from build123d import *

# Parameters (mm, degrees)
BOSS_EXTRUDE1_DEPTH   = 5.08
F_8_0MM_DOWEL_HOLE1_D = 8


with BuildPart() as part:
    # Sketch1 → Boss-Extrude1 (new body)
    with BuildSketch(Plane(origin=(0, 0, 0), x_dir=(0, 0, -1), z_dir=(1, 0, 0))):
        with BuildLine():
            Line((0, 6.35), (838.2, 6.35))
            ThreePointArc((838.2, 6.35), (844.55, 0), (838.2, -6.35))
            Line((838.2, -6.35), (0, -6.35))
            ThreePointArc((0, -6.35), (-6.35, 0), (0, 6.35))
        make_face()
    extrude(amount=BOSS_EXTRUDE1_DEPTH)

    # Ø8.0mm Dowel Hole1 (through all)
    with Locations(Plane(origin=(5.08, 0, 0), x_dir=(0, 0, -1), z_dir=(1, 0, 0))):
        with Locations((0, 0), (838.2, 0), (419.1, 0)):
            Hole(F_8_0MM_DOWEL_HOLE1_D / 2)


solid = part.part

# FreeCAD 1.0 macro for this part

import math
import FreeCAD as App
import Part
import Sketcher

V = App.Vector
Q = App.Units.Quantity

doc = App.newDocument("Part")
body = doc.addObject("PartDesign::Body", "Body")

# Sketch on YZ plane
sketch1 = body.newObject("Sketcher::SketchObject", "Sketch")
sketch1.AttachmentSupport = (doc.getObject("YZ_Plane"), [""])
sketch1.MapMode = "FlatFace"
sketch1.addGeometry([
    Part.LineSegment(V(6, -838, 0), V(6, 0, 0)),
    Part.ArcOfCircle(Part.Circle(V(0, 0, 0), V(0, 0, 1), 6), math.radians(0), math.radians(180)),
    Part.LineSegment(V(-6, 0, 0), V(-6, -838, 0)),
    Part.ArcOfCircle(Part.Circle(V(0, -838, 0), V(0, 0, 1), 6), math.radians(180), math.radians(360)),
], False)
sketch1.addConstraint([
    Sketcher.Constraint("Tangent", 0, 2, 1, 1),
    Sketcher.Constraint("Tangent", 1, 2, 2, 1),
    Sketcher.Constraint("Tangent", 2, 2, 3, 1),
    Sketcher.Constraint("Tangent", 3, 2, 0, 1),
    Sketcher.Constraint("Vertical", 0),
    Sketcher.Constraint("Vertical", 2),
    Sketcher.Constraint("Coincident", 1, 3, -1, 1),
    Sketcher.Constraint("DistanceY", 0, 1, 0, 2, Q("33 in")),
    Sketcher.Constraint("Radius", 1, Q("0.25 in")),
])
pad1 = body.newObject("PartDesign::Pad", "Pad")
pad1.Profile = sketch1
pad1.Length = Q("0.2 in")

# Sketch on YZ plane
sketch2 = body.newObject("Sketcher::SketchObject", "Sketch001")
sketch2.AttachmentSupport = (doc.getObject("YZ_Plane"), [""])
sketch2.MapMode = "FlatFace"
sketch2.AttachmentOffset = App.Placement(V(0, 0, 0.2 * 25.4), App.Rotation())
sketch2.addGeometry([
    Part.Circle(V(0, 0, 0), V(0, 0, 1), 4),
    Part.Circle(V(0, -838.2, 0), V(0, 0, 1), 4),
    Part.Circle(V(0, -419.1, 0), V(0, 0, 1), 4),
], False)
sketch2.addConstraint([
    Sketcher.Constraint("Coincident", 0, 3, -1, 1),
    Sketcher.Constraint("Equal", 0, 1),
    Sketcher.Constraint("Equal", 1, 2),
    Sketcher.Constraint("PointOnObject", 1, 3, -2),
    Sketcher.Constraint("PointOnObject", 2, 3, -2),
    Sketcher.Constraint("DistanceY", 1, 3, -1, 1, Q("33 in")),
    Sketcher.Constraint("DistanceY", 2, 3, -1, 1, Q("16.5 in")),
    Sketcher.Constraint("Diameter", 0, Q("8 mm")),
])
doc.recompute()
hole = body.newObject("PartDesign::Hole", "Hole")
hole.Profile = sketch2
hole.ThreadType = "None"
hole.Diameter = 8
hole.DepthType = "ThroughAll"

doc.recompute()
